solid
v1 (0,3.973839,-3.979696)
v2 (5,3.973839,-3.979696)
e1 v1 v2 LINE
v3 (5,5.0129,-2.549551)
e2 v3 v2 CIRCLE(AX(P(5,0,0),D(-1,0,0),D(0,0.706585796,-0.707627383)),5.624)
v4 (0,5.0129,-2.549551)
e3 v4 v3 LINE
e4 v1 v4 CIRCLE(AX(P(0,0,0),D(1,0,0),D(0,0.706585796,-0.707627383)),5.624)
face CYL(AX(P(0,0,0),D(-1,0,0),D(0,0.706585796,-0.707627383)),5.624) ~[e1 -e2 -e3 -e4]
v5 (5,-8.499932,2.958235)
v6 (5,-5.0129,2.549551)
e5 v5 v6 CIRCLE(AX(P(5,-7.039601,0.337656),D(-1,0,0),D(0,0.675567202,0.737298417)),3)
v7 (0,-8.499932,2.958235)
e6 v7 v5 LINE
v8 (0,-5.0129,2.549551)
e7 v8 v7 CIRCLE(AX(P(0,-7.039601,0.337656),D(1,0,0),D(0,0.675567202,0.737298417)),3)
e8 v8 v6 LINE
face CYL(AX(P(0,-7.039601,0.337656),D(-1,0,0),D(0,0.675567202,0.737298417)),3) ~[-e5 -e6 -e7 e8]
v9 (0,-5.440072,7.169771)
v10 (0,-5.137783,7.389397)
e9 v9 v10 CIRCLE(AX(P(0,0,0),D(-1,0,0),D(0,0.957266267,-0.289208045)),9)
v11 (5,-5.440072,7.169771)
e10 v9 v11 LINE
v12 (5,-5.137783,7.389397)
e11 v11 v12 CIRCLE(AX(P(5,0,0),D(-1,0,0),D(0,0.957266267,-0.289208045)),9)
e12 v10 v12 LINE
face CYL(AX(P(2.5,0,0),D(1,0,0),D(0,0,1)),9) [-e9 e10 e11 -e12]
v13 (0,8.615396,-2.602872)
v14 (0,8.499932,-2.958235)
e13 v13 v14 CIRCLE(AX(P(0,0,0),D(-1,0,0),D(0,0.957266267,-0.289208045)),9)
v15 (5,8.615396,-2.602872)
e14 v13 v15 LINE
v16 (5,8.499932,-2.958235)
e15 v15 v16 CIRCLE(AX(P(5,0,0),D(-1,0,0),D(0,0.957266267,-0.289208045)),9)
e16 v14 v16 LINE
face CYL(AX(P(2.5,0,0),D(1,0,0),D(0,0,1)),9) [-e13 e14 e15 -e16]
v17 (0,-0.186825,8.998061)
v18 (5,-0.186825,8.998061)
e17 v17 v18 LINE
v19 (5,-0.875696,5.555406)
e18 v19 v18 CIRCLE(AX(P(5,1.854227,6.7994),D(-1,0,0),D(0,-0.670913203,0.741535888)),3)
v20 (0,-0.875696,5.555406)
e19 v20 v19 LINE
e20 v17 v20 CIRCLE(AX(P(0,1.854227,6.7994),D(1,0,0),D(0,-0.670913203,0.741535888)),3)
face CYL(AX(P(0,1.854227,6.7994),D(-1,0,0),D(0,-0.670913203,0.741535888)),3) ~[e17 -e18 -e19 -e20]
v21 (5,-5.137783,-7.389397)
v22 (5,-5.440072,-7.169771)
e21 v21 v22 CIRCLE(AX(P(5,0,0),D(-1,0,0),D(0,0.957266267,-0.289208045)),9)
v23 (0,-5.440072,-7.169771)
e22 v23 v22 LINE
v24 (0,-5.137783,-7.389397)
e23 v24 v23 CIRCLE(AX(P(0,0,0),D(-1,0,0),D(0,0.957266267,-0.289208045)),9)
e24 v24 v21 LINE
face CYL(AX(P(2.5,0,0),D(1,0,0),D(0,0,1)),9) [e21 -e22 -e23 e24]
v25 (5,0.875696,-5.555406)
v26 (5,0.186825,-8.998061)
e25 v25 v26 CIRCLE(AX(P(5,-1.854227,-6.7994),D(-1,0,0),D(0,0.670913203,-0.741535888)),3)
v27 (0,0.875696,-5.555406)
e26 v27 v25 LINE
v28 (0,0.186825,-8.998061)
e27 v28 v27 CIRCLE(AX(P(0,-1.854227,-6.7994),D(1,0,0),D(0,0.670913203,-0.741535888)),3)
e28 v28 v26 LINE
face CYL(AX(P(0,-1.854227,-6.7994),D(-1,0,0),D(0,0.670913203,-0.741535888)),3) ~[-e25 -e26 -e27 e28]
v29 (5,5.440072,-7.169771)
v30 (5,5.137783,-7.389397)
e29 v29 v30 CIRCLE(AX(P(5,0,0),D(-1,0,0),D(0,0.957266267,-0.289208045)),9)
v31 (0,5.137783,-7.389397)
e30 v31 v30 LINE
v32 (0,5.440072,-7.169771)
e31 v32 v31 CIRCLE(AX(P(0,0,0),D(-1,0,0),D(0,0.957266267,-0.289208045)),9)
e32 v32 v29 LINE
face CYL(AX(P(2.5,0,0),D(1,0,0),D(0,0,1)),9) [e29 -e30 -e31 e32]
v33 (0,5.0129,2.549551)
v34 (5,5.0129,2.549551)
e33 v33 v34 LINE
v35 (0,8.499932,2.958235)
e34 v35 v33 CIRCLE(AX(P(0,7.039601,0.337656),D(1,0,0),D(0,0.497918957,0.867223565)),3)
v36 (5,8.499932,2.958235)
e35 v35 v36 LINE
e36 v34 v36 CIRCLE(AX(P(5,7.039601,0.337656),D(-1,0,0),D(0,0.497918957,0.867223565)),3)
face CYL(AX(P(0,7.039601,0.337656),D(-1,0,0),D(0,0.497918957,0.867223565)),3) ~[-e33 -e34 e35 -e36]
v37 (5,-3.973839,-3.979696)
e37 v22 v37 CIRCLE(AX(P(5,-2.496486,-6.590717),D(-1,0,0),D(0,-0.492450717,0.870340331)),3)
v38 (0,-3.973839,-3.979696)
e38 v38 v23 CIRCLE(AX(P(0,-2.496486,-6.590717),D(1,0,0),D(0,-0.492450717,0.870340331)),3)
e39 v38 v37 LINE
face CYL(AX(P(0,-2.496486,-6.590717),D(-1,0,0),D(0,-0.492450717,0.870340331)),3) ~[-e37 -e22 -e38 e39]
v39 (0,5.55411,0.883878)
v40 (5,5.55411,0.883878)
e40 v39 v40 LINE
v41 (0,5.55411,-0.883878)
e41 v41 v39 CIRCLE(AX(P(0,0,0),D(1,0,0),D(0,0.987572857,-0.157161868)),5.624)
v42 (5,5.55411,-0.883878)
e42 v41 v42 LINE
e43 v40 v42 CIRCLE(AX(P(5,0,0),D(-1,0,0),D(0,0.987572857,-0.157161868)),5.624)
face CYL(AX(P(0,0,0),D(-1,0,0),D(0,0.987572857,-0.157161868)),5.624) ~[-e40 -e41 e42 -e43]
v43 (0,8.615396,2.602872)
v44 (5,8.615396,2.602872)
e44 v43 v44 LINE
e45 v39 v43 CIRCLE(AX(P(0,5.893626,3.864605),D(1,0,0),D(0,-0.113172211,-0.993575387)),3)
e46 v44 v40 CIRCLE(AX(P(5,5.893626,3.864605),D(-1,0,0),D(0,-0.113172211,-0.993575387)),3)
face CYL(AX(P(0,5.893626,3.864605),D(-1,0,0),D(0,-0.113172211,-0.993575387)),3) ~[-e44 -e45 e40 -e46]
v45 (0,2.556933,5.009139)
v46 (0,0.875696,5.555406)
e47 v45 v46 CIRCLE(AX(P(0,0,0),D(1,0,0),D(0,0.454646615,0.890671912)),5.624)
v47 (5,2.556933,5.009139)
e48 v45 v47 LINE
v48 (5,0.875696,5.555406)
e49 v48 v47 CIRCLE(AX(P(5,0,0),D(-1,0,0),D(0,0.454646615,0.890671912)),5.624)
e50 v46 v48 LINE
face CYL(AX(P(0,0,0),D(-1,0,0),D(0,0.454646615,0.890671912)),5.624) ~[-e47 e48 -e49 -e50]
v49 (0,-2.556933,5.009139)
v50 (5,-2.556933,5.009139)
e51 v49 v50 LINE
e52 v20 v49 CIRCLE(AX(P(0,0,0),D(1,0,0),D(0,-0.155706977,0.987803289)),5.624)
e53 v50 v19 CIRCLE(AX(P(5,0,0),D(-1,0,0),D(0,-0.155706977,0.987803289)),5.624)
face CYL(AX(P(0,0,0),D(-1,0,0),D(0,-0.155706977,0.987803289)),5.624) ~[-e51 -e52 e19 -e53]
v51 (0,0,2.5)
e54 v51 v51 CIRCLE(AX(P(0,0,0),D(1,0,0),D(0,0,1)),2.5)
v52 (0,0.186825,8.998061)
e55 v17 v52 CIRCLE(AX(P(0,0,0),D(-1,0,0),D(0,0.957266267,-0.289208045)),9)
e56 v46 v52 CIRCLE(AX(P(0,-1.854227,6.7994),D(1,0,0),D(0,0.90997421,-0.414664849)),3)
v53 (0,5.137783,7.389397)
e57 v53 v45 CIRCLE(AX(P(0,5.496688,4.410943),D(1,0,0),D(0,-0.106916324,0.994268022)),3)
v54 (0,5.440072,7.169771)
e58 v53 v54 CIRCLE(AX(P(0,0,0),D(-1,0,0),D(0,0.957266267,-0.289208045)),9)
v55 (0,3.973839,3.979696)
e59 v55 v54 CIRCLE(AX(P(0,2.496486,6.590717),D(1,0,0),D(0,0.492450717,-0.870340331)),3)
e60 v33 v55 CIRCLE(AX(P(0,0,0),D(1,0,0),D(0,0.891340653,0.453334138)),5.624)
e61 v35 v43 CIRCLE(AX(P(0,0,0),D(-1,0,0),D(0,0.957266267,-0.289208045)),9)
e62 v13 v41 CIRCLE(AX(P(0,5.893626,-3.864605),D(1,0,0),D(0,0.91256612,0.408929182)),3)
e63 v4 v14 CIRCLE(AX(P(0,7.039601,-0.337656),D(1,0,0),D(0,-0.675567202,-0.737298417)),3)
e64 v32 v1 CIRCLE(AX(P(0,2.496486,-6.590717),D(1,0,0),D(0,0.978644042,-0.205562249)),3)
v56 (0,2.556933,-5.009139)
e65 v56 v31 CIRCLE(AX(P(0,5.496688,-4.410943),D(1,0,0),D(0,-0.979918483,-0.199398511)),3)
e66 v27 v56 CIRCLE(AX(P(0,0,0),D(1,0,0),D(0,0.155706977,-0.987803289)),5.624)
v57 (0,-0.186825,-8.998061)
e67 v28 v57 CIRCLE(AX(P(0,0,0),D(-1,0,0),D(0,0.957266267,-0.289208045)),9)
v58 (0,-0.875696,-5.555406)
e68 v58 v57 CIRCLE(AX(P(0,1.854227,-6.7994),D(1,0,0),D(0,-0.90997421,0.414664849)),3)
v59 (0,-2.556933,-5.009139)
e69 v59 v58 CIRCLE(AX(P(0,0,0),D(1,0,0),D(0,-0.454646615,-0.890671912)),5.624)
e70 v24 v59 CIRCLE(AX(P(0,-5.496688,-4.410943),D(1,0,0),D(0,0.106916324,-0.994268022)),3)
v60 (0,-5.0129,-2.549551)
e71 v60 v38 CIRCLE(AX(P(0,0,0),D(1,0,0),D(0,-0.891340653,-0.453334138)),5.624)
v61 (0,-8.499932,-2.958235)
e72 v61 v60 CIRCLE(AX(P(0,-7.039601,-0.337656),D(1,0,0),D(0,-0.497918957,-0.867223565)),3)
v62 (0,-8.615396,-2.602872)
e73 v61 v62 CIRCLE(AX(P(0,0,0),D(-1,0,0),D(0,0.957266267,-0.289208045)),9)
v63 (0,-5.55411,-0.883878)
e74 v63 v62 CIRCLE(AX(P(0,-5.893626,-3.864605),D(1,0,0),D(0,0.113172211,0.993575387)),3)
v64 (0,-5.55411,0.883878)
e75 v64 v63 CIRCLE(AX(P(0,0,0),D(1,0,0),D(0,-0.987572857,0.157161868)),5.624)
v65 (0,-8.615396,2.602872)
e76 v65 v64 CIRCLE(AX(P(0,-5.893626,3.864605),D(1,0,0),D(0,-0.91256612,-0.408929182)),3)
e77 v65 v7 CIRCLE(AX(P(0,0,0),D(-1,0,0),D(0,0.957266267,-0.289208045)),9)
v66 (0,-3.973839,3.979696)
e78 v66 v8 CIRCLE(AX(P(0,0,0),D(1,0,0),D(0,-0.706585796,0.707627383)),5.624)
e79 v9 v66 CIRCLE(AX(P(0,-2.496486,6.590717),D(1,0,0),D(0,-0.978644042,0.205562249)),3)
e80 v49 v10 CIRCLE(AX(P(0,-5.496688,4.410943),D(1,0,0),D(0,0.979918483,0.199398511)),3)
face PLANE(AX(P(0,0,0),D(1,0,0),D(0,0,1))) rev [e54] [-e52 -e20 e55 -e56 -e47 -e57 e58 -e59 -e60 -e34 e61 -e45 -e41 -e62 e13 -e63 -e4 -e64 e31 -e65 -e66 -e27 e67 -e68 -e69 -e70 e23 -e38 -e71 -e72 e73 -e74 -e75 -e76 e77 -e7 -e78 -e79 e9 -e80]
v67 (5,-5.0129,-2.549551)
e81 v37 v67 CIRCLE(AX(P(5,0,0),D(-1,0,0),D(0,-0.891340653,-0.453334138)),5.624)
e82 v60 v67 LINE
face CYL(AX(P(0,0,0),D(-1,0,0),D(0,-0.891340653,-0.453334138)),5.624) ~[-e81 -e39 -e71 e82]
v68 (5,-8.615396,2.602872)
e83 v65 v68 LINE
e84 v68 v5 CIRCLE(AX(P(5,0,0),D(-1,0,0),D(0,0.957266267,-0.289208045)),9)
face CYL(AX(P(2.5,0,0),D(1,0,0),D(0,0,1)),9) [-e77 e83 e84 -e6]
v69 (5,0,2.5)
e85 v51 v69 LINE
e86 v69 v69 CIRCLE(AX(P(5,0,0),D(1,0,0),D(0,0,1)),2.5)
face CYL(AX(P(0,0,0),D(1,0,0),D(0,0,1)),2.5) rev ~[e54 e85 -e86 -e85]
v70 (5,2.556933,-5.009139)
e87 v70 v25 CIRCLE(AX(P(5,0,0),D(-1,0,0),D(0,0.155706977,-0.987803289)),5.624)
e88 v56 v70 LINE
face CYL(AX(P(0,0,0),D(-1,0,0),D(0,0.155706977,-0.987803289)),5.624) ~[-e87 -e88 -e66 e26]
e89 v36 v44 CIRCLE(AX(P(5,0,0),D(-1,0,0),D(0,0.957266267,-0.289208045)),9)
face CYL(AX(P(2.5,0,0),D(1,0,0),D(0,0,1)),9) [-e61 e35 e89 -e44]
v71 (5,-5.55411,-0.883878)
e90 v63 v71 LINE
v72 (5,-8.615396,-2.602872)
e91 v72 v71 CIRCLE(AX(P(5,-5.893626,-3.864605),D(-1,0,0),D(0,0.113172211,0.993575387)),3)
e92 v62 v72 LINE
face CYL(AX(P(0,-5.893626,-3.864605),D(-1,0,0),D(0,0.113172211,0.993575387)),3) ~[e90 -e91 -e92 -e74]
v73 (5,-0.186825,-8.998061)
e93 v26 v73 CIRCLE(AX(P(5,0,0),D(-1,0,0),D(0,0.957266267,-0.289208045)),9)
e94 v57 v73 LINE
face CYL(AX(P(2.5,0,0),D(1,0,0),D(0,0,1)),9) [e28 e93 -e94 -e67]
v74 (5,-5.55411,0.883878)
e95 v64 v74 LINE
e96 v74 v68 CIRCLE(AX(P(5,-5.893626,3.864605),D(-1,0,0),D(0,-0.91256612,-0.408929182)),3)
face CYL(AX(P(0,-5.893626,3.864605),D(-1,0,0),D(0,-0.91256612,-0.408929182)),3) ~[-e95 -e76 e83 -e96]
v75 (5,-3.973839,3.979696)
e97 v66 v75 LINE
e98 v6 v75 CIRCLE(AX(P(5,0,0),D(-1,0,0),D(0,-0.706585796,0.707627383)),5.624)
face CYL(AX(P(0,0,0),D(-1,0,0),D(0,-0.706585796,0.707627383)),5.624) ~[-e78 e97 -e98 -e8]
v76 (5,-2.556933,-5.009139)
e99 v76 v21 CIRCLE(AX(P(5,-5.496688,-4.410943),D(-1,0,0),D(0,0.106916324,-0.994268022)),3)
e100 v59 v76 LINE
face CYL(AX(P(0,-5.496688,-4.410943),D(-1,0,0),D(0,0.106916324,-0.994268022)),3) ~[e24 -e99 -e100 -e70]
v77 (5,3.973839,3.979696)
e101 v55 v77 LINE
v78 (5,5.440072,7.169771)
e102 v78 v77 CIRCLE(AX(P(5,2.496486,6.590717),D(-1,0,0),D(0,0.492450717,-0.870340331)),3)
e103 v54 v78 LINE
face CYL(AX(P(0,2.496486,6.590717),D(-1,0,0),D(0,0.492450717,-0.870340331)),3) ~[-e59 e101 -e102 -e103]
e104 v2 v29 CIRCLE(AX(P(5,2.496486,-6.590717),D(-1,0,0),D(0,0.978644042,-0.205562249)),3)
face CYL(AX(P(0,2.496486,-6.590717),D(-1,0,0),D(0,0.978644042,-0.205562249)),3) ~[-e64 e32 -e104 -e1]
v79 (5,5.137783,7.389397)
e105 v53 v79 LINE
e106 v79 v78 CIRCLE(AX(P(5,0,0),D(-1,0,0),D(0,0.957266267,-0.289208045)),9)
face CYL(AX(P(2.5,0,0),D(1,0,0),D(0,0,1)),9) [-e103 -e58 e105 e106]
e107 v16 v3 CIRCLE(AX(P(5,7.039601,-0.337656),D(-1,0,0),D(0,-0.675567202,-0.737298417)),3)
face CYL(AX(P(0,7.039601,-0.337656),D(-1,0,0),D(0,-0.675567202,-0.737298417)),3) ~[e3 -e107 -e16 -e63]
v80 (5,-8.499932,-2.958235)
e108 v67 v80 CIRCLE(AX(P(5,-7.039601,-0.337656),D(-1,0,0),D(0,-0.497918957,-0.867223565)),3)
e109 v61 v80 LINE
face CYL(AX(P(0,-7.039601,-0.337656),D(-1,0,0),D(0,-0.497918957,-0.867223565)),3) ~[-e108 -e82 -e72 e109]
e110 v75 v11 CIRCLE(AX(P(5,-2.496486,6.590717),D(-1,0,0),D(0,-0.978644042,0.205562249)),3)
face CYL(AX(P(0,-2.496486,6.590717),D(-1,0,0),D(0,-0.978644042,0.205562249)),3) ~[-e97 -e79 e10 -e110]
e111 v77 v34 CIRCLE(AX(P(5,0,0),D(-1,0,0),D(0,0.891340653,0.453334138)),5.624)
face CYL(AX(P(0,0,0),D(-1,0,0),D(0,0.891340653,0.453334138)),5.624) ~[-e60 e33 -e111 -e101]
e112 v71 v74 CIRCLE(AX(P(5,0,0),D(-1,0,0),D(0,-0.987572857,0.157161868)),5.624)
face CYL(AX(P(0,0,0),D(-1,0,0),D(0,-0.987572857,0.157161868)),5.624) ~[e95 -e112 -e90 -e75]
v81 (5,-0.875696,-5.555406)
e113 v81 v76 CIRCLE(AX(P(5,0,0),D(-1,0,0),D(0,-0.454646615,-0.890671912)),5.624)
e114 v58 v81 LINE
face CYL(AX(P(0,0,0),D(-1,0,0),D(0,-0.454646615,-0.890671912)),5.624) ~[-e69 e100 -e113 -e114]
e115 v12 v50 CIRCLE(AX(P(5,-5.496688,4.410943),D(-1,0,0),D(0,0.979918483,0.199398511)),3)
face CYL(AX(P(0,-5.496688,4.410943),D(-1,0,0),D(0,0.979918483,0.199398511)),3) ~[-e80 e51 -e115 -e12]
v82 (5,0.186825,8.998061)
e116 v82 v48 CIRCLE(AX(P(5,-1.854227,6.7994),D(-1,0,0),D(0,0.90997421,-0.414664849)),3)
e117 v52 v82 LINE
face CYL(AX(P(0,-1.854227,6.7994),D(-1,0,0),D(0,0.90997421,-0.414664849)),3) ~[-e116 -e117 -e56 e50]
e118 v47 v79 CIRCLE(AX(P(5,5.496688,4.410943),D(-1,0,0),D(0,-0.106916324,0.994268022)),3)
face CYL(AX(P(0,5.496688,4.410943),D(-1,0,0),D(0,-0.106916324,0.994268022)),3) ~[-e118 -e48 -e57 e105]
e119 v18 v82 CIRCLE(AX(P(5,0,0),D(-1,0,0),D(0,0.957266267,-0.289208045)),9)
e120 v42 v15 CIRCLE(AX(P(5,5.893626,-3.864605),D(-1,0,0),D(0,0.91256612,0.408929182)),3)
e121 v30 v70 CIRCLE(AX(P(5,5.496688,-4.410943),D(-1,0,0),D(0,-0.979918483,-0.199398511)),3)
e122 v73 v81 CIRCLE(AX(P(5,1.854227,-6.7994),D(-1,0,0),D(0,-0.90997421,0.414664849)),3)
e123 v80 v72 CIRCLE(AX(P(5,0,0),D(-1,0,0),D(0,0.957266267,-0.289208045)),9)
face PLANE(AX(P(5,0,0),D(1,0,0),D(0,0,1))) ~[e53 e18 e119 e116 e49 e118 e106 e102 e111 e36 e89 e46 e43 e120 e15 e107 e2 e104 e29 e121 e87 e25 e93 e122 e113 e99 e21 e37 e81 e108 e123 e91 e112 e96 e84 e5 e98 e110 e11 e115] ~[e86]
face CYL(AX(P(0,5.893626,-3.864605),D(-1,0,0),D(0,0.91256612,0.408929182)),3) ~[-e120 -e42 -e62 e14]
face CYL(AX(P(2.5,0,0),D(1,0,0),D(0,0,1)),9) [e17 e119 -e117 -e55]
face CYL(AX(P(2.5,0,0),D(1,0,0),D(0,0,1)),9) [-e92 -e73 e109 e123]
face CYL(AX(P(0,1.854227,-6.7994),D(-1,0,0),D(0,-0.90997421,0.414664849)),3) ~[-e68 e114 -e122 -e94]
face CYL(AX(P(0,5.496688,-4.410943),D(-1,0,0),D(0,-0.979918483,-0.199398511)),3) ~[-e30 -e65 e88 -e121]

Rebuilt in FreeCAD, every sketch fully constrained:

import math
import FreeCAD as App
import Part
import Sketcher

doc = App.newDocument("Part")
body = doc.addObject("PartDesign::Body", "Body")

# Sketch on XZ plane
sketch1 = body.newObject("Sketcher::SketchObject", "Sketch")
sketch1.AttachmentSupport = (doc.getObject("XZ_Plane"), [""])
sketch1.MapMode = "FlatFace"
sketch1.addGeometry(Part.LineSegment(App.Vector(0, -9, 0), App.Vector(0, 0, 0)), False)
sketch1.addGeometry(Part.LineSegment(App.Vector(0, 0, 0), App.Vector(5, 0, 0)), False)
sketch1.addGeometry(Part.LineSegment(App.Vector(5, 0, 0), App.Vector(5, -9, 0)), False)
sketch1.addGeometry(Part.LineSegment(App.Vector(5, -9, 0), App.Vector(0, -9, 0)), False)
sketch1.addConstraint(Sketcher.Constraint("Coincident", 0, 2, 1, 1))
sketch1.addConstraint(Sketcher.Constraint("Coincident", 1, 2, 2, 1))
sketch1.addConstraint(Sketcher.Constraint("Coincident", 2, 2, 3, 1))
sketch1.addConstraint(Sketcher.Constraint("Coincident", 3, 2, 0, 1))
sketch1.addConstraint(Sketcher.Constraint("Vertical", 0))
sketch1.addConstraint(Sketcher.Constraint("Horizontal", 1))
sketch1.addConstraint(Sketcher.Constraint("Vertical", 2))
sketch1.addConstraint(Sketcher.Constraint("Horizontal", 3))
sketch1.addConstraint(Sketcher.Constraint("Coincident", 0, 2, -1, 1))
sketch1.addConstraint(Sketcher.Constraint("DistanceX", 1, 1, 1, 2, 5.0))
sketch1.addConstraint(Sketcher.Constraint("DistanceY", 0, 1, 0, 2, 9.0))
revolution = body.newObject("PartDesign::Revolution", "Revolution")
revolution.Profile = sketch1
revolution.ReferenceAxis = (sketch1, ["H_Axis"])
revolution.Angle = 360

# Sketch on YZ plane
sketch2 = body.newObject("Sketcher::SketchObject", "Sketch001")
sketch2.AttachmentSupport = (doc.getObject("YZ_Plane"), [""])
sketch2.MapMode = "FlatFace"
sketch2.addGeometry(Part.ArcOfCircle(Part.Circle(App.Vector(0, 0, 0), App.Vector(0, 0, 1), 5.6), math.radians(-9.04), math.radians(9.04)), False)
sketch2.addGeometry(Part.ArcOfCircle(Part.Circle(App.Vector(5.9, -3.9, 0), App.Vector(0, 0, 1), 3), math.radians(24), math.radians(96)), False)
sketch2.addGeometry(Part.ArcOfCircle(Part.Circle(App.Vector(0, 0, 0), App.Vector(0, 0, 1), 9), math.radians(-17), math.radians(17)), False)
sketch2.addGeometry(Part.ArcOfCircle(Part.Circle(App.Vector(5.9, 3.9, 0), App.Vector(0, 0, 1), 3), math.radians(-96), math.radians(-24)), False)
sketch2.addConstraint(Sketcher.Constraint("Coincident", 0, 1, 1, 2))
sketch2.addConstraint(Sketcher.Constraint("Coincident", 1, 1, 2, 1))
sketch2.addConstraint(Sketcher.Constraint("Coincident", 2, 2, 3, 2))
sketch2.addConstraint(Sketcher.Constraint("Coincident", 3, 1, 0, 2))
sketch2.addConstraint(Sketcher.Constraint("Coincident", 0, 3, -1, 1))
sketch2.addConstraint(Sketcher.Constraint("Coincident", 2, 3, -1, 1))
sketch2.addConstraint(Sketcher.Constraint("Equal", 1, 3))
sketch2.addConstraint(Sketcher.Constraint("Symmetric", 1, 3, 3, 3, -1))
sketch2.addConstraint(Sketcher.Constraint("Radius", 1, 3.0))
sketch2.addConstraint(Sketcher.Constraint("Radius", 0, 5.624))
sketch2.addConstraint(Sketcher.Constraint("Radius", 2, 9.0254))
sketch2.addConstraint(Sketcher.Constraint("DistanceX", 1, 3, 1, 1, 2.737698))
sketch2.addConstraint(Sketcher.Constraint("DistanceX", -1, 1, 0, 1, 5.55411))
pocket1 = body.newObject("PartDesign::Pocket", "Pocket")
pocket1.Profile = sketch2
pocket1.Type = "ThroughAll"
pocket1.Reversed = True
doc.recompute()

polarpattern = body.newObject("PartDesign::PolarPattern", "PolarPattern")
polarpattern.Originals = [pocket1]
polarpattern.Axis = (doc.getObject("X_Axis"), [""])
polarpattern.Angle = 360
polarpattern.Occurrences = 10
body.Tip = polarpattern

# Sketch on YZ plane
sketch3 = body.newObject("Sketcher::SketchObject", "Sketch002")
sketch3.AttachmentSupport = (doc.getObject("YZ_Plane"), [""])
sketch3.MapMode = "FlatFace"
sketch3.addGeometry(Part.Circle(App.Vector(0, 0, 0), App.Vector(0, 0, 1), 2.5), False)
sketch3.addConstraint(Sketcher.Constraint("Coincident", 0, 3, -1, 1))
sketch3.addConstraint(Sketcher.Constraint("Diameter", 0, 5.0))
pocket2 = body.newObject("PartDesign::Pocket", "Pocket001")
pocket2.Profile = sketch3
pocket2.Length = 100.000102
pocket2.Midplane = True

doc.recompute()
